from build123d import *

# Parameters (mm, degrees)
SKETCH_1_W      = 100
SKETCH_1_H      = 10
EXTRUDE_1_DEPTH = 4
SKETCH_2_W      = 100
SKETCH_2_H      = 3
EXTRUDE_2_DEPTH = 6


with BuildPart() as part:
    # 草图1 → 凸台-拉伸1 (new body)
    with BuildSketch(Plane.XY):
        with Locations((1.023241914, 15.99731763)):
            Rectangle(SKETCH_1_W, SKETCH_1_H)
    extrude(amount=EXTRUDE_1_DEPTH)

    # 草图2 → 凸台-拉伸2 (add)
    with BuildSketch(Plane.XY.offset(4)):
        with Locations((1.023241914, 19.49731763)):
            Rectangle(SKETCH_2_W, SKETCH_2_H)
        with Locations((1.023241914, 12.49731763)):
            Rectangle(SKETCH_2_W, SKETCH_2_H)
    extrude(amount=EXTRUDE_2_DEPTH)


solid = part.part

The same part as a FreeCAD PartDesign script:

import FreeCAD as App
import Part
import Sketcher
from FreeCAD import Vector
Q = App.Units.Quantity

doc = App.newDocument("Part")
body = doc.addObject("PartDesign::Body", "Body")

sketch1 = doc.addObject("Sketcher::SketchObject", "Sketch")
body.addObject(sketch1)
sketch1.AttachmentSupport = (doc.XY_Plane, [""])
sketch1.MapMode = "FlatFace"
sketch1.addGeometry([
    Part.LineSegment(Vector(-49, 21, 0), Vector(-49, 11, 0)),
    Part.LineSegment(Vector(-49, 11, 0), Vector(51, 11, 0)),
    Part.LineSegment(Vector(51, 11, 0), Vector(51, 21, 0)),
    Part.LineSegment(Vector(51, 21, 0), Vector(-49, 21, 0)),
], False)
sketch1.addConstraint([
    Sketcher.Constraint("Coincident", 0, 2, 1, 1),
    Sketcher.Constraint("Coincident", 1, 2, 2, 1),
    Sketcher.Constraint("Coincident", 2, 2, 3, 1),
    Sketcher.Constraint("Coincident", 3, 2, 0, 1),
    Sketcher.Constraint("Vertical", 0),
    Sketcher.Constraint("Horizontal", 1),
    Sketcher.Constraint("Vertical", 2),
    Sketcher.Constraint("Horizontal", 3),
    Sketcher.Constraint("DistanceX", 1, 1, 1, 2, Q("100 mm")),
    Sketcher.Constraint("DistanceY", 0, 2, 0, 1, Q("10 mm")),
    Sketcher.Constraint("DistanceX", 0, 2, -1, 1, Q("48.976758 mm")),
    Sketcher.Constraint("DistanceY", -1, 1, 0, 2, Q("10.997318 mm")),
])
pad1 = doc.addObject("PartDesign::Pad", "Pad")
body.addObject(pad1)
pad1.Profile = sketch1
pad1.Length = 4

sketch2 = doc.addObject("Sketcher::SketchObject", "Sketch001")
body.addObject(sketch2)
sketch2.AttachmentSupport = (doc.XY_Plane, [""])
sketch2.MapMode = "FlatFace"
sketch2.AttachmentOffset = App.Placement(Vector(0, 0, 4), App.Rotation())
sketch2.addGeometry([
    Part.LineSegment(Vector(-49, 21, 0), Vector(-49, 18, 0)),
    Part.LineSegment(Vector(-49, 18, 0), Vector(51, 18, 0)),
    Part.LineSegment(Vector(51, 18, 0), Vector(51, 21, 0)),
    Part.LineSegment(Vector(51, 21, 0), Vector(-49, 21, 0)),
    Part.LineSegment(Vector(-49, 14, 0), Vector(-49, 11, 0)),
    Part.LineSegment(Vector(-49, 11, 0), Vector(51, 11, 0)),
    Part.LineSegment(Vector(51, 11, 0), Vector(51, 14, 0)),
    Part.LineSegment(Vector(51, 14, 0), Vector(-49, 14, 0)),
], False)
sketch2.addConstraint([
    Sketcher.Constraint("Coincident", 0, 2, 1, 1),
    Sketcher.Constraint("Coincident", 1, 2, 2, 1),
    Sketcher.Constraint("Coincident", 2, 2, 3, 1),
    Sketcher.Constraint("Coincident", 3, 2, 0, 1),
    Sketcher.Constraint("Coincident", 4, 2, 5, 1),
    Sketcher.Constraint("Coincident", 5, 2, 6, 1),
    Sketcher.Constraint("Coincident", 6, 2, 7, 1),
    Sketcher.Constraint("Coincident", 7, 2, 4, 1),
    Sketcher.Constraint("Vertical", 0),
    Sketcher.Constraint("Horizontal", 1),
    Sketcher.Constraint("Vertical", 2),
    Sketcher.Constraint("Horizontal", 3),
    Sketcher.Constraint("Vertical", 4),
    Sketcher.Constraint("Horizontal", 5),
    Sketcher.Constraint("Vertical", 6),
    Sketcher.Constraint("Horizontal", 7),
    Sketcher.Constraint("Vertical", 3, 2, 4, 2),
    Sketcher.Constraint("Vertical", 2, 2, 5, 2),
    Sketcher.Constraint("Equal", 2, 4),
    Sketcher.Constraint("DistanceX", 1, 1, 1, 2, Q("100 mm")),
    Sketcher.Constraint("DistanceY", 0, 2, 0, 1, Q("3 mm")),
    Sketcher.Constraint("DistanceY", 4, 2, 0, 2, Q("7 mm")),
    Sketcher.Constraint("DistanceX", 0, 2, -1, 1, Q("48.976758 mm")),
    Sketcher.Constraint("DistanceY", -1, 1, 0, 2, Q("17.997318 mm")),
])
pad2 = doc.addObject("PartDesign::Pad", "Pad001")
body.addObject(pad2)
pad2.Profile = sketch2
pad2.Length = 6

doc.recompute()
